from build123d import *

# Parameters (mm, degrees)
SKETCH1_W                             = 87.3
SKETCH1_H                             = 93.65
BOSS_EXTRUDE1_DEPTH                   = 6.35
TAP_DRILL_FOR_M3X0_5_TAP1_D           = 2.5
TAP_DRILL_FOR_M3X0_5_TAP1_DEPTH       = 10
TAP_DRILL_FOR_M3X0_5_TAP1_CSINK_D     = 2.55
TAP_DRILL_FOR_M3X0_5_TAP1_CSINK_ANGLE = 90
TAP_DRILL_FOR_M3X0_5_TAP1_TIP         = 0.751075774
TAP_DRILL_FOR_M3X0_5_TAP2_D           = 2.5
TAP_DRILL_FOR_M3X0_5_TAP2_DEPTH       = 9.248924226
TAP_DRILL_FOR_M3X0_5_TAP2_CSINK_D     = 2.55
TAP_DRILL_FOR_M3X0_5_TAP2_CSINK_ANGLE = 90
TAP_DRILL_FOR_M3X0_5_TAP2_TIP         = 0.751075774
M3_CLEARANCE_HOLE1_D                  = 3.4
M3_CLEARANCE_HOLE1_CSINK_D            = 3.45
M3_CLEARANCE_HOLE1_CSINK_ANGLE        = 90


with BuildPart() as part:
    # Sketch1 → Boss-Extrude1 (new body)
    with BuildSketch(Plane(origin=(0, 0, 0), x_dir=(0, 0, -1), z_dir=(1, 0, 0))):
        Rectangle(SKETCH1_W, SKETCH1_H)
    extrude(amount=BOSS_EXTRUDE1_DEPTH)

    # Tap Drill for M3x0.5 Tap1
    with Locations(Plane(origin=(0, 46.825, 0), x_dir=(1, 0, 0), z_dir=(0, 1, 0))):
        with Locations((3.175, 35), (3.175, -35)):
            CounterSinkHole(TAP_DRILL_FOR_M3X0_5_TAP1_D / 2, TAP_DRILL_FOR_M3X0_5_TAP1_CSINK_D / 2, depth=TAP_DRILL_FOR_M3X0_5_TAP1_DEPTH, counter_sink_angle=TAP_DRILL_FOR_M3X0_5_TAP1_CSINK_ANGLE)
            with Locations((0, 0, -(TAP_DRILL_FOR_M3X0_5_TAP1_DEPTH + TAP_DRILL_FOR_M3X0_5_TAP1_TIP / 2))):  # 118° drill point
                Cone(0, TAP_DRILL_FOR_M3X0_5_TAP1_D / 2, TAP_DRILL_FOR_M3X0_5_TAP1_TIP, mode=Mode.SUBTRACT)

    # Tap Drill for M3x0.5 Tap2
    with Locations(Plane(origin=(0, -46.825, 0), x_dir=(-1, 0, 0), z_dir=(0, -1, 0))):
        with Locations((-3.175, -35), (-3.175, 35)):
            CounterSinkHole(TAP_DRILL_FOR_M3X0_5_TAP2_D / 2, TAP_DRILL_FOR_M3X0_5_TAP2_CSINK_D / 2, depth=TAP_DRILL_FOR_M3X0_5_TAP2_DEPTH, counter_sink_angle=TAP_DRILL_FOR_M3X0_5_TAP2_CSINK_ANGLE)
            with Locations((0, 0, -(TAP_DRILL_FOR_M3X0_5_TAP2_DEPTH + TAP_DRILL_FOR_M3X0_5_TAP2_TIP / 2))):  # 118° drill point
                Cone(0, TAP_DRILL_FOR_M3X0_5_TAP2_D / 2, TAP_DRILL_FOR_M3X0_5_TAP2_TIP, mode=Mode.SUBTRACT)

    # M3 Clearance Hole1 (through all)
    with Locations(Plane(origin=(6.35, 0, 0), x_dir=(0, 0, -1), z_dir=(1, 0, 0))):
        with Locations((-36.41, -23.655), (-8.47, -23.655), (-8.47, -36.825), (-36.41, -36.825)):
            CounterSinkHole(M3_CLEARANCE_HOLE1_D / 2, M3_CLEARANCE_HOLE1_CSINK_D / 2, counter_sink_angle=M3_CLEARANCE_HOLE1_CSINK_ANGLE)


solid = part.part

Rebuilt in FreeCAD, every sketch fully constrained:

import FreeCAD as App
import Part
import Sketcher

doc = App.newDocument("Part")
body = doc.addObject("PartDesign::Body", "Body")

# Sketch on YZ plane
sketch1 = doc.addObject("Sketcher::SketchObject", "Sketch")
body.addObject(sketch1)
sketch1.AttachmentSupport = (doc.YZ_Plane, [""])
sketch1.MapMode = "FlatFace"
sketch1.addGeometry(Part.LineSegment(App.Vector(47, 44, 0), App.Vector(-47, 44, 0)), False)
sketch1.addGeometry(Part.LineSegment(App.Vector(-47, 44, 0), App.Vector(-47, -44, 0)), False)
sketch1.addGeometry(Part.LineSegment(App.Vector(-47, -44, 0), App.Vector(47, -44, 0)), False)
sketch1.addGeometry(Part.LineSegment(App.Vector(47, -44, 0), App.Vector(47, 44, 0)), False)
sketch1.addConstraint(Sketcher.Constraint("Coincident", 0, 2, 1, 1))
sketch1.addConstraint(Sketcher.Constraint("Coincident", 1, 2, 2, 1))
sketch1.addConstraint(Sketcher.Constraint("Coincident", 2, 2, 3, 1))
sketch1.addConstraint(Sketcher.Constraint("Coincident", 3, 2, 0, 1))
sketch1.addConstraint(Sketcher.Constraint("Horizontal", 0))
sketch1.addConstraint(Sketcher.Constraint("Vertical", 1))
sketch1.addConstraint(Sketcher.Constraint("Horizontal", 2))
sketch1.addConstraint(Sketcher.Constraint("Vertical", 3))
sketch1.addConstraint(Sketcher.Constraint("Symmetric", 0, 2, 2, 2, -1, 1))
sketch1.addConstraint(Sketcher.Constraint("DistanceY", 1, 2, 1, 1, 87.3))
sketch1.addConstraint(Sketcher.Constraint("DistanceX", 0, 2, 0, 1, 93.65))
pad1 = doc.addObject("PartDesign::Pad", "Pad")
body.addObject(pad1)
pad1.Profile = sketch1
pad1.Length = 6.35

# Sketch on XZ plane
sketch2 = doc.addObject("Sketcher::SketchObject", "Sketch001")
body.addObject(sketch2)
sketch2.AttachmentSupport = (doc.XZ_Plane, [""])
sketch2.MapMode = "FlatFace"
sketch2.AttachmentOffset = App.Placement(App.Vector(0, 0, -46.825), App.Rotation())
sketch2.addGeometry(Part.Circle(App.Vector(3.2, -35, 0), App.Vector(0, 0, 1), 1.2), False)
sketch2.addGeometry(Part.Circle(App.Vector(3.2, 35, 0), App.Vector(0, 0, 1), 1.2), False)
sketch2.addConstraint(Sketcher.Constraint("Equal", 0, 1))
sketch2.addConstraint(Sketcher.Constraint("Symmetric", 0, 3, 1, 3, -1))
sketch2.addConstraint(Sketcher.Constraint("Diameter", 0, 2.5))
sketch2.addConstraint(Sketcher.Constraint("DistanceY", 0, 3, -1, 1, 35.0))
sketch2.addConstraint(Sketcher.Constraint("DistanceX", -1, 1, 0, 3, 3.175))
doc.recompute()
hole = doc.addObject("PartDesign::Hole", "Hole")
body.addObject(hole)
hole.Profile = sketch2
hole.ThreadType = "None"
hole.Diameter = 2.5
hole.DepthType = "Dimension"
hole.Depth = 10
hole.DrillPoint = "Angled"
hole.DrillPointAngle = 118
hole.HoleCutType = "Countersink"
hole.HoleCutDiameter = 2.55
hole.HoleCutCountersinkAngle = 90
hole.Reversed = True

# Sketch on XZ plane
sketch3 = doc.addObject("Sketcher::SketchObject", "Sketch002")
body.addObject(sketch3)
sketch3.AttachmentSupport = (doc.XZ_Plane, [""])
sketch3.MapMode = "FlatFace"
sketch3.AttachmentOffset = App.Placement(App.Vector(0, 0, 46.825), App.Rotation())
sketch3.addGeometry(Part.Circle(App.Vector(3.2, 35, 0), App.Vector(0, 0, 1), 1.2), False)
sketch3.addGeometry(Part.Circle(App.Vector(3.2, -35, 0), App.Vector(0, 0, 1), 1.2), False)
sketch3.addConstraint(Sketcher.Constraint("Equal", 0, 1))
sketch3.addConstraint(Sketcher.Constraint("Symmetric", 0, 3, 1, 3, -1))
sketch3.addConstraint(Sketcher.Constraint("Diameter", 0, 2.5))
sketch3.addConstraint(Sketcher.Constraint("DistanceY", -1, 1, 0, 3, 35.0))
sketch3.addConstraint(Sketcher.Constraint("DistanceX", -1, 1, 0, 3, 3.175))
doc.recompute()
hole2 = doc.addObject("PartDesign::Hole", "Hole001")
body.addObject(hole2)
hole2.Profile = sketch3
hole2.ThreadType = "None"
hole2.Diameter = 2.5
hole2.DepthType = "Dimension"
hole2.Depth = 9.248924
hole2.DrillPoint = "Angled"
hole2.DrillPointAngle = 118
hole2.HoleCutType = "Countersink"
hole2.HoleCutDiameter = 2.55
hole2.HoleCutCountersinkAngle = 90

# Sketch on YZ plane
sketch4 = doc.addObject("Sketcher::SketchObject", "Sketch003")
body.addObject(sketch4)
sketch4.AttachmentSupport = (doc.YZ_Plane, [""])
sketch4.MapMode = "FlatFace"
sketch4.AttachmentOffset = App.Placement(App.Vector(0, 0, 6.35), App.Rotation())
sketch4.addGeometry(Part.Circle(App.Vector(-23.7, 36.4, 0), App.Vector(0, 0, 1), 1.7), False)
sketch4.addGeometry(Part.Circle(App.Vector(-23.7, 8.5, 0), App.Vector(0, 0, 1), 1.7), False)
sketch4.addGeometry(Part.Circle(App.Vector(-36.8, 8.5, 0), App.Vector(0, 0, 1), 1.7), False)
sketch4.addGeometry(Part.Circle(App.Vector(-36.8, 36.4, 0), App.Vector(0, 0, 1), 1.7), False)
sketch4.addConstraint(Sketcher.Constraint("Equal", 0, 1))
sketch4.addConstraint(Sketcher.Constraint("Equal", 1, 2))
sketch4.addConstraint(Sketcher.Constraint("Equal", 2, 3))
sketch4.addConstraint(Sketcher.Constraint("Horizontal", 1, 3, 2, 3))
sketch4.addConstraint(Sketcher.Constraint("Horizontal", 0, 3, 3, 3))
sketch4.addConstraint(Sketcher.Constraint("Vertical", 0, 3, 1, 3))
sketch4.addConstraint(Sketcher.Constraint("Vertical", 2, 3, 3, 3))
sketch4.addConstraint(Sketcher.Constraint("Diameter", 0, 3.4))
sketch4.addConstraint(Sketcher.Constraint("DistanceY", -1, 1, 0, 3, 36.41))
sketch4.addConstraint(Sketcher.Constraint("DistanceY", -1, 1, 1, 3, 8.47))
sketch4.addConstraint(Sketcher.Constraint("DistanceX", 2, 3, 1, 3, 13.17))
sketch4.addConstraint(Sketcher.Constraint("DistanceX", 0, 3, -1, 1, 23.655))
doc.recompute()
hole3 = doc.addObject("PartDesign::Hole", "Hole002")
body.addObject(hole3)
hole3.Profile = sketch4
hole3.ThreadType = "None"
hole3.Diameter = 3.4
hole3.DepthType = "ThroughAll"
hole3.HoleCutType = "Countersink"
hole3.HoleCutDiameter = 3.45
hole3.HoleCutCountersinkAngle = 90

doc.recompute()
